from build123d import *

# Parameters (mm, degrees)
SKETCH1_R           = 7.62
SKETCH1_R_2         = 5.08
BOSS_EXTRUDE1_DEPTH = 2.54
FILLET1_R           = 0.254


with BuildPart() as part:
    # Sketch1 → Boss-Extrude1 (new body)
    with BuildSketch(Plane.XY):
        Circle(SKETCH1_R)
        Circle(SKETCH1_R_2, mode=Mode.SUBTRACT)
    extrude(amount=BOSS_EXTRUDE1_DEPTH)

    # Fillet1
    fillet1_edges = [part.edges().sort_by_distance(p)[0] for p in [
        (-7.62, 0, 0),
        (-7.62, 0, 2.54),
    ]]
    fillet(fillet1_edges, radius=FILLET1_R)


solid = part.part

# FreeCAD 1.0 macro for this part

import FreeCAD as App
import Part
import Sketcher
Q = App.Units.Quantity


def edges_at(feature, points):
    """Names of the edges that pass closest to the given points."""
    edges = feature.Shape.Edges
    near = lambda p: min(range(len(edges)), key=lambda i: edges[i].distToShape(Part.Vertex(*p))[0])
    return sorted({f"Edge{near(p) + 1}" for p in points})

doc = App.newDocument("Part")
body = doc.addObject("PartDesign::Body", "Body")

# Sketch on XY plane
sketch1 = body.newObject("Sketcher::SketchObject", "Sketch")
sketch1.AttachmentSupport = (doc.getObject("XY_Plane"), [""])
sketch1.MapMode = "FlatFace"
sketch1.addGeometry(Part.Circle(App.Vector(0, 0, 0), App.Vector(0, 0, 1), 8), False)
sketch1.addGeometry(Part.Circle(App.Vector(0, 0, 0), App.Vector(0, 0, 1), 5), False)
sketch1.addConstraint(Sketcher.Constraint("Coincident", 0, 3, -1, 1))
sketch1.addConstraint(Sketcher.Constraint("Coincident", 1, 3, -1, 1))
sketch1.addConstraint(Sketcher.Constraint("Diameter", 0, Q("0.6 in")))
sketch1.addConstraint(Sketcher.Constraint("Diameter", 1, Q("0.4 in")))
pad1 = body.newObject("PartDesign::Pad", "Pad")
pad1.Profile = sketch1
pad1.Length = Q("0.1 in")
doc.recompute()

fillet = body.newObject("PartDesign::Fillet", "Fillet")
fillet.Base = (pad1, edges_at(pad1, [(-7.62, 0, 0), (-7.62, 0, 2.54)]))
fillet.Radius = Q("0.01 in")

doc.recompute()
